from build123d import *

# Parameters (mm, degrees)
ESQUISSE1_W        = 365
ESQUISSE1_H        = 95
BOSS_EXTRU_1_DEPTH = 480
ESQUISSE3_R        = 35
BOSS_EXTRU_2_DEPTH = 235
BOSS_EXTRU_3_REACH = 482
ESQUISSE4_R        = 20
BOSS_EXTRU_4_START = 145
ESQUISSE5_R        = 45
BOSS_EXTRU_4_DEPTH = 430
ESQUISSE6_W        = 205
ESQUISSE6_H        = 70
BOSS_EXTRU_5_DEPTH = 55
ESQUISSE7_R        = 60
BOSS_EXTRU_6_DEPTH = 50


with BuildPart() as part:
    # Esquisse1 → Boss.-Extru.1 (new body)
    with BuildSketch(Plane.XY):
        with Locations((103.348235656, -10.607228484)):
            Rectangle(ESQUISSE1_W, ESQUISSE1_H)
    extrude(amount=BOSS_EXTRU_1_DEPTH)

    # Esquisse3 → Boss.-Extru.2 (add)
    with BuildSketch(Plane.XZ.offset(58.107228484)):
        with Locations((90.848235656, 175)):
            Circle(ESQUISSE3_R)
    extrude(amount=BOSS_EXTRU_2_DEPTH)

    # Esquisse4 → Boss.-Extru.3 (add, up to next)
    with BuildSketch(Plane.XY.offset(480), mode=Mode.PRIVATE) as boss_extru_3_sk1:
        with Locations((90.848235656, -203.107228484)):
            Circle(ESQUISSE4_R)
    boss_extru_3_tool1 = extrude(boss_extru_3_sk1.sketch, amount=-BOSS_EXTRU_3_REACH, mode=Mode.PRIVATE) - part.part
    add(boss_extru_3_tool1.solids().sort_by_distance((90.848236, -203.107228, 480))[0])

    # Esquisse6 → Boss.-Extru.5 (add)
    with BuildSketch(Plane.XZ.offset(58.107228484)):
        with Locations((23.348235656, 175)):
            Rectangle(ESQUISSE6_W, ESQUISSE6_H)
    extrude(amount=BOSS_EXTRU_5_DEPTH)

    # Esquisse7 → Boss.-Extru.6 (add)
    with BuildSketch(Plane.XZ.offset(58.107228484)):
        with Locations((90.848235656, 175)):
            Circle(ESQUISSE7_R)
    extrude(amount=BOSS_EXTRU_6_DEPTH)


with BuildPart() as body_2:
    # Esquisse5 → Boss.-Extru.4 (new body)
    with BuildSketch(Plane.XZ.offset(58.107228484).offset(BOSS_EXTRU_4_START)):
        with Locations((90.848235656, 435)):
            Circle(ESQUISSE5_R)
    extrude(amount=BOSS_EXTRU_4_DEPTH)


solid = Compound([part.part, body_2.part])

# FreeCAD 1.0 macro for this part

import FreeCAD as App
import Part
import Sketcher
Q = App.Units.Quantity


def add_polygon(sketch, points):
    """Adds a closed chain of lines whose ends are joined by coincident constraints."""
    first, n = sketch.GeometryCount, len(points)
    for a, b in zip(points, points[1:] + points[:1]):
        sketch.addGeometry(Part.LineSegment(App.Vector(*a, 0), App.Vector(*b, 0)), False)
    for i in range(n):
        sketch.addConstraint(Sketcher.Constraint("Coincident", first + i, 2, first + (i + 1) % n, 1))

doc = App.newDocument("Part")
body = doc.addObject("PartDesign::Body", "Body")

# Sketch on XY plane
sketch1 = doc.addObject("Sketcher::SketchObject", "Sketch")
body.addObject(sketch1)
sketch1.AttachmentSupport = (doc.XY_Plane, [""])
sketch1.MapMode = "FlatFace"
add_polygon(sketch1, [(-79, 37), (-79, -58), (286, -58), (286, 37)])  # lines 0-3
sketch1.addConstraint(Sketcher.Constraint("Vertical", 0))
sketch1.addConstraint(Sketcher.Constraint("Horizontal", 1))
sketch1.addConstraint(Sketcher.Constraint("Vertical", 2))
sketch1.addConstraint(Sketcher.Constraint("Horizontal", 3))
sketch1.addConstraint(Sketcher.Constraint("DistanceX", 1, 1, 1, 2, Q("365 mm")))
sketch1.addConstraint(Sketcher.Constraint("DistanceY", 0, 2, 0, 1, Q("95 mm")))
sketch1.addConstraint(Sketcher.Constraint("DistanceY", 0, 2, -1, 1, Q("58.107228 mm")))
sketch1.addConstraint(Sketcher.Constraint("DistanceX", 0, 2, -1, 1, Q("79.151764 mm")))
pad1 = doc.addObject("PartDesign::Pad", "Pad")
body.addObject(pad1)
pad1.Profile = sketch1
pad1.Length = 480

# Sketch on XZ plane
sketch2 = doc.addObject("Sketcher::SketchObject", "Sketch001")
body.addObject(sketch2)
sketch2.AttachmentSupport = (doc.XZ_Plane, [""])
sketch2.MapMode = "FlatFace"
sketch2.AttachmentOffset = App.Placement(App.Vector(0, 0, 58.107228), App.Rotation())
sketch2.addGeometry(Part.Circle(App.Vector(91, 175, 0), App.Vector(0, 0, 1), 35), False)
sketch2.addConstraint(Sketcher.Constraint("Diameter", 0, Q("70 mm")))
sketch2.addConstraint(Sketcher.Constraint("DistanceY", -1, 1, 0, 3, Q("175 mm")))
sketch2.addConstraint(Sketcher.Constraint("DistanceX", -1, 1, 0, 3, Q("90.848236 mm")))
pad2 = doc.addObject("PartDesign::Pad", "Pad001")
body.addObject(pad2)
pad2.Profile = sketch2
pad2.Length = 235

# Sketch on XY plane
sketch3 = doc.addObject("Sketcher::SketchObject", "Sketch002")
body.addObject(sketch3)
sketch3.AttachmentSupport = (doc.XY_Plane, [""])
sketch3.MapMode = "FlatFace"
sketch3.AttachmentOffset = App.Placement(App.Vector(0, 0, 480), App.Rotation())
sketch3.addGeometry(Part.Circle(App.Vector(91, -203, 0), App.Vector(0, 0, 1), 20), False)
sketch3.addConstraint(Sketcher.Constraint("Diameter", 0, Q("40 mm")))
sketch3.addConstraint(Sketcher.Constraint("DistanceY", 0, 3, -1, 1, Q("203.107228 mm")))
sketch3.addConstraint(Sketcher.Constraint("DistanceX", -1, 1, 0, 3, Q("90.848236 mm")))
pad3 = doc.addObject("PartDesign::Pad", "Pad002")
body.addObject(pad3)
pad3.Profile = sketch3
pad3.Type = "UpToFirst"
pad3.Reversed = True

# Sketch on XZ plane
sketch4 = doc.addObject("Sketcher::SketchObject", "Sketch003")
body.addObject(sketch4)
sketch4.AttachmentSupport = (doc.XZ_Plane, [""])
sketch4.MapMode = "FlatFace"
sketch4.AttachmentOffset = App.Placement(App.Vector(0, 0, 58.107228), App.Rotation())
add_polygon(sketch4, [(-79, 210), (-79, 140), (126, 140), (126, 210)])  # lines 0-3
sketch4.addConstraint(Sketcher.Constraint("Vertical", 0))
sketch4.addConstraint(Sketcher.Constraint("Horizontal", 1))
sketch4.addConstraint(Sketcher.Constraint("Vertical", 2))
sketch4.addConstraint(Sketcher.Constraint("Horizontal", 3))
sketch4.addConstraint(Sketcher.Constraint("DistanceX", 1, 1, 1, 2, Q("205 mm")))
sketch4.addConstraint(Sketcher.Constraint("DistanceY", 0, 2, 0, 1, Q("70 mm")))
sketch4.addConstraint(Sketcher.Constraint("DistanceY", -1, 1, 0, 2, Q("140 mm")))
sketch4.addConstraint(Sketcher.Constraint("DistanceX", 0, 2, -1, 1, Q("79.151764 mm")))
pad4 = doc.addObject("PartDesign::Pad", "Pad003")
body.addObject(pad4)
pad4.Profile = sketch4
pad4.Length = 55

# Sketch on XZ plane
sketch5 = doc.addObject("Sketcher::SketchObject", "Sketch004")
body.addObject(sketch5)
sketch5.AttachmentSupport = (doc.XZ_Plane, [""])
sketch5.MapMode = "FlatFace"
sketch5.AttachmentOffset = App.Placement(App.Vector(0, 0, 58.107228), App.Rotation())
sketch5.addGeometry(Part.Circle(App.Vector(91, 175, 0), App.Vector(0, 0, 1), 60), False)
sketch5.addConstraint(Sketcher.Constraint("Diameter", 0, Q("120 mm")))
sketch5.addConstraint(Sketcher.Constraint("DistanceY", -1, 1, 0, 3, Q("175 mm")))
sketch5.addConstraint(Sketcher.Constraint("DistanceX", -1, 1, 0, 3, Q("90.848236 mm")))
pad5 = doc.addObject("PartDesign::Pad", "Pad004")
body.addObject(pad5)
pad5.Profile = sketch5
pad5.Length = 50
body2 = doc.addObject("PartDesign::Body", "Body001")

# Sketch on XZ plane
sketch6 = doc.addObject("Sketcher::SketchObject", "Sketch005")
body2.addObject(sketch6)
sketch6.AttachmentSupport = (doc.getObject("XZ_Plane001"), [""])
sketch6.MapMode = "FlatFace"
sketch6.AttachmentOffset = App.Placement(App.Vector(0, 0, 203.107228), App.Rotation())
sketch6.addGeometry(Part.Circle(App.Vector(91, 435, 0), App.Vector(0, 0, 1), 45), False)
sketch6.addConstraint(Sketcher.Constraint("Diameter", 0, Q("90 mm")))
sketch6.addConstraint(Sketcher.Constraint("DistanceY", -1, 1, 0, 3, Q("435 mm")))
sketch6.addConstraint(Sketcher.Constraint("DistanceX", -1, 1, 0, 3, Q("90.848236 mm")))
pad6 = doc.addObject("PartDesign::Pad", "Pad005")
body2.addObject(pad6)
pad6.Profile = sketch6
pad6.Length = 430

doc.recompute()
